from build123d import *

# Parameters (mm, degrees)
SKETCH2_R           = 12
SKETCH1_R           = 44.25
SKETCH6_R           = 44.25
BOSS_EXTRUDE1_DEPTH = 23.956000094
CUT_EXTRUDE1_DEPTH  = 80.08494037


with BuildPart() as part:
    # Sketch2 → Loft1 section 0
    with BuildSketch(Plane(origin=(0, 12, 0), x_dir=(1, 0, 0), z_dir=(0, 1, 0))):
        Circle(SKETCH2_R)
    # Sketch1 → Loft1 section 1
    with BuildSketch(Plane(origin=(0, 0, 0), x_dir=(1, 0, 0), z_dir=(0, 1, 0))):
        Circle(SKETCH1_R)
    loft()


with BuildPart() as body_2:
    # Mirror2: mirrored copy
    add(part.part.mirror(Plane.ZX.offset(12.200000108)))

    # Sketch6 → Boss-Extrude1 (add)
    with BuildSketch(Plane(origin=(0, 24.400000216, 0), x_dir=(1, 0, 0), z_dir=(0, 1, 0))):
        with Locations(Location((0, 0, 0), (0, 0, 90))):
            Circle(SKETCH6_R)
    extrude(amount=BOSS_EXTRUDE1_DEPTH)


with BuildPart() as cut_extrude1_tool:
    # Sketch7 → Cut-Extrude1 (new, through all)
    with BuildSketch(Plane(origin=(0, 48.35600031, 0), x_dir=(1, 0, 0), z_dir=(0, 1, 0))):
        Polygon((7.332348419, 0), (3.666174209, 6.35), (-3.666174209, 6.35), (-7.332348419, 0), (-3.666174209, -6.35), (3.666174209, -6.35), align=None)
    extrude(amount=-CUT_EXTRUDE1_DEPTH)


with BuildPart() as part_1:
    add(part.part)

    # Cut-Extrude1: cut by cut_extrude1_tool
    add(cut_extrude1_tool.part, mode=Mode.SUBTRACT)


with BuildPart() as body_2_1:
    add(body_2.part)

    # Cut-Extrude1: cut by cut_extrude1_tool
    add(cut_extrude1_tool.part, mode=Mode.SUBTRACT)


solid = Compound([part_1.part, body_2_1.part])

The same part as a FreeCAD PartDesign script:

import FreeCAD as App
import Part
import Sketcher
from FreeCAD import Vector
Q = App.Units.Quantity

doc = App.newDocument("Part")
body = doc.addObject("PartDesign::Body", "Body")

sketch1 = body.newObject("Sketcher::SketchObject", "Sketch")
sketch1.AttachmentSupport = (doc.getObject("XZ_Plane"), [""])
sketch1.MapMode = "FlatFace"
sketch1.AttachmentOffset = App.Placement(Vector(0, 0, -12), App.Rotation())
sketch1.addGeometry(Part.Circle(Vector(0, 0, 0), Vector(0, 0, 1), 12), False)
sketch1.addConstraint(Sketcher.Constraint("Coincident", 0, 3, -1, 1))
sketch1.addConstraint(Sketcher.Constraint("Diameter", 0, 24.0))

sketch2 = body.newObject("Sketcher::SketchObject", "Sketch001")
sketch2.AttachmentSupport = (doc.getObject("XZ_Plane"), [""])
sketch2.MapMode = "FlatFace"
sketch2.addGeometry(Part.Circle(Vector(0, 0, 0), Vector(0, 0, 1), 44), False)
sketch2.addConstraint(Sketcher.Constraint("Coincident", 0, 3, -1, 1))
sketch2.addConstraint(Sketcher.Constraint("Diameter", 0, 88.5))

additiveloft = body.newObject("PartDesign::AdditiveLoft", "AdditiveLoft")
additiveloft.Profile = sketch1
additiveloft.Sections = [sketch2]
body2 = doc.addObject("PartDesign::Body", "Body001")
doc.recompute()

mirroring = doc.addObject("Part::Mirroring", "Mirroring")
mirroring.Source = body
mirroring.Base = Vector(0, 12.2, 0)
mirroring.Normal = Vector(0, 1, 0)
body2.BaseFeature = mirroring
doc.recompute()

sketch3 = body2.newObject("Sketcher::SketchObject", "Sketch002")
sketch3.AttachmentSupport = (doc.getObject("XZ_Plane001"), [""])
sketch3.MapMode = "FlatFace"
sketch3.AttachmentOffset = App.Placement(Vector(0, 0, -24.4), App.Rotation())
sketch3.addGeometry(Part.Circle(Vector(0, 0, 0), Vector(0, 0, 1), 44), False)
sketch3.addConstraint(Sketcher.Constraint("Coincident", 0, 3, -1, 1))
sketch3.addConstraint(Sketcher.Constraint("Diameter", 0, 88.5))
pad1 = body2.newObject("PartDesign::Pad", "Pad")
pad1.Profile = sketch3
pad1.Length = 23.956
pad1.Reversed = True
body3 = doc.addObject("PartDesign::Body", "Body002")

sketch4 = body3.newObject("Sketcher::SketchObject", "Sketch003")
sketch4.AttachmentSupport = (doc.getObject("XZ_Plane002"), [""])
sketch4.MapMode = "FlatFace"
sketch4.AttachmentOffset = App.Placement(Vector(0, 0, -48.356), App.Rotation())
sketch4.addGeometry(Part.LineSegment(Vector(7, 0, 0), Vector(4, -6, 0)), False)
sketch4.addGeometry(Part.LineSegment(Vector(4, -6, 0), Vector(-4, -6, 0)), False)
sketch4.addGeometry(Part.LineSegment(Vector(-4, -6, 0), Vector(-7, 0, 0)), False)
sketch4.addGeometry(Part.LineSegment(Vector(-7, 0, 0), Vector(-4, 6, 0)), False)
sketch4.addGeometry(Part.LineSegment(Vector(-4, 6, 0), Vector(4, 6, 0)), False)
sketch4.addGeometry(Part.LineSegment(Vector(4, 6, 0), Vector(7, 0, 0)), False)
sketch4.addConstraint(Sketcher.Constraint("Coincident", 0, 2, 1, 1))
sketch4.addConstraint(Sketcher.Constraint("Coincident", 1, 2, 2, 1))
sketch4.addConstraint(Sketcher.Constraint("Coincident", 2, 2, 3, 1))
sketch4.addConstraint(Sketcher.Constraint("Coincident", 3, 2, 4, 1))
sketch4.addConstraint(Sketcher.Constraint("Coincident", 4, 2, 5, 1))
sketch4.addConstraint(Sketcher.Constraint("Coincident", 5, 2, 0, 1))
sketch4.addConstraint(Sketcher.Constraint("Horizontal", 1))
sketch4.addConstraint(Sketcher.Constraint("Horizontal", 4))
sketch4.addConstraint(Sketcher.Constraint("Symmetric", 0, 2, 3, 2, -1, 1))
sketch4.addConstraint(Sketcher.Constraint("Symmetric", 2, 2, 5, 2, -1, 1))
sketch4.addConstraint(Sketcher.Constraint("PointOnObject", 2, 2, -1))
sketch4.addConstraint(Sketcher.Constraint("Parallel", 2, 5))
sketch4.addConstraint(Sketcher.Constraint("Vertical", 1, 2, 3, 2))
sketch4.addConstraint(Sketcher.Constraint("Angle", 0, Q("-120 deg")))
sketch4.addConstraint(Sketcher.Constraint("DistanceY", 1, 2, 3, 2, 12.7))
sketch4.addConstraint(Sketcher.Constraint("DistanceX", 1, 2, 1, 1, 7.332348))
pad2 = body3.newObject("PartDesign::Pad", "Pad001")
pad2.Profile = sketch4
pad2.Length = 80.08494
doc.recompute()

body4 = doc.addObject("PartDesign::Body", "Body003")
body4.BaseFeature = body3
boolean = body.newObject("PartDesign::Boolean", "Boolean")
boolean.Type = "Cut"
boolean.addObjects([body4])
doc.recompute()

boolean2 = body2.newObject("PartDesign::Boolean", "Boolean001")
boolean2.Type = "Cut"
boolean2.addObjects([body3])
mirroring.Visibility = False

doc.recompute()
